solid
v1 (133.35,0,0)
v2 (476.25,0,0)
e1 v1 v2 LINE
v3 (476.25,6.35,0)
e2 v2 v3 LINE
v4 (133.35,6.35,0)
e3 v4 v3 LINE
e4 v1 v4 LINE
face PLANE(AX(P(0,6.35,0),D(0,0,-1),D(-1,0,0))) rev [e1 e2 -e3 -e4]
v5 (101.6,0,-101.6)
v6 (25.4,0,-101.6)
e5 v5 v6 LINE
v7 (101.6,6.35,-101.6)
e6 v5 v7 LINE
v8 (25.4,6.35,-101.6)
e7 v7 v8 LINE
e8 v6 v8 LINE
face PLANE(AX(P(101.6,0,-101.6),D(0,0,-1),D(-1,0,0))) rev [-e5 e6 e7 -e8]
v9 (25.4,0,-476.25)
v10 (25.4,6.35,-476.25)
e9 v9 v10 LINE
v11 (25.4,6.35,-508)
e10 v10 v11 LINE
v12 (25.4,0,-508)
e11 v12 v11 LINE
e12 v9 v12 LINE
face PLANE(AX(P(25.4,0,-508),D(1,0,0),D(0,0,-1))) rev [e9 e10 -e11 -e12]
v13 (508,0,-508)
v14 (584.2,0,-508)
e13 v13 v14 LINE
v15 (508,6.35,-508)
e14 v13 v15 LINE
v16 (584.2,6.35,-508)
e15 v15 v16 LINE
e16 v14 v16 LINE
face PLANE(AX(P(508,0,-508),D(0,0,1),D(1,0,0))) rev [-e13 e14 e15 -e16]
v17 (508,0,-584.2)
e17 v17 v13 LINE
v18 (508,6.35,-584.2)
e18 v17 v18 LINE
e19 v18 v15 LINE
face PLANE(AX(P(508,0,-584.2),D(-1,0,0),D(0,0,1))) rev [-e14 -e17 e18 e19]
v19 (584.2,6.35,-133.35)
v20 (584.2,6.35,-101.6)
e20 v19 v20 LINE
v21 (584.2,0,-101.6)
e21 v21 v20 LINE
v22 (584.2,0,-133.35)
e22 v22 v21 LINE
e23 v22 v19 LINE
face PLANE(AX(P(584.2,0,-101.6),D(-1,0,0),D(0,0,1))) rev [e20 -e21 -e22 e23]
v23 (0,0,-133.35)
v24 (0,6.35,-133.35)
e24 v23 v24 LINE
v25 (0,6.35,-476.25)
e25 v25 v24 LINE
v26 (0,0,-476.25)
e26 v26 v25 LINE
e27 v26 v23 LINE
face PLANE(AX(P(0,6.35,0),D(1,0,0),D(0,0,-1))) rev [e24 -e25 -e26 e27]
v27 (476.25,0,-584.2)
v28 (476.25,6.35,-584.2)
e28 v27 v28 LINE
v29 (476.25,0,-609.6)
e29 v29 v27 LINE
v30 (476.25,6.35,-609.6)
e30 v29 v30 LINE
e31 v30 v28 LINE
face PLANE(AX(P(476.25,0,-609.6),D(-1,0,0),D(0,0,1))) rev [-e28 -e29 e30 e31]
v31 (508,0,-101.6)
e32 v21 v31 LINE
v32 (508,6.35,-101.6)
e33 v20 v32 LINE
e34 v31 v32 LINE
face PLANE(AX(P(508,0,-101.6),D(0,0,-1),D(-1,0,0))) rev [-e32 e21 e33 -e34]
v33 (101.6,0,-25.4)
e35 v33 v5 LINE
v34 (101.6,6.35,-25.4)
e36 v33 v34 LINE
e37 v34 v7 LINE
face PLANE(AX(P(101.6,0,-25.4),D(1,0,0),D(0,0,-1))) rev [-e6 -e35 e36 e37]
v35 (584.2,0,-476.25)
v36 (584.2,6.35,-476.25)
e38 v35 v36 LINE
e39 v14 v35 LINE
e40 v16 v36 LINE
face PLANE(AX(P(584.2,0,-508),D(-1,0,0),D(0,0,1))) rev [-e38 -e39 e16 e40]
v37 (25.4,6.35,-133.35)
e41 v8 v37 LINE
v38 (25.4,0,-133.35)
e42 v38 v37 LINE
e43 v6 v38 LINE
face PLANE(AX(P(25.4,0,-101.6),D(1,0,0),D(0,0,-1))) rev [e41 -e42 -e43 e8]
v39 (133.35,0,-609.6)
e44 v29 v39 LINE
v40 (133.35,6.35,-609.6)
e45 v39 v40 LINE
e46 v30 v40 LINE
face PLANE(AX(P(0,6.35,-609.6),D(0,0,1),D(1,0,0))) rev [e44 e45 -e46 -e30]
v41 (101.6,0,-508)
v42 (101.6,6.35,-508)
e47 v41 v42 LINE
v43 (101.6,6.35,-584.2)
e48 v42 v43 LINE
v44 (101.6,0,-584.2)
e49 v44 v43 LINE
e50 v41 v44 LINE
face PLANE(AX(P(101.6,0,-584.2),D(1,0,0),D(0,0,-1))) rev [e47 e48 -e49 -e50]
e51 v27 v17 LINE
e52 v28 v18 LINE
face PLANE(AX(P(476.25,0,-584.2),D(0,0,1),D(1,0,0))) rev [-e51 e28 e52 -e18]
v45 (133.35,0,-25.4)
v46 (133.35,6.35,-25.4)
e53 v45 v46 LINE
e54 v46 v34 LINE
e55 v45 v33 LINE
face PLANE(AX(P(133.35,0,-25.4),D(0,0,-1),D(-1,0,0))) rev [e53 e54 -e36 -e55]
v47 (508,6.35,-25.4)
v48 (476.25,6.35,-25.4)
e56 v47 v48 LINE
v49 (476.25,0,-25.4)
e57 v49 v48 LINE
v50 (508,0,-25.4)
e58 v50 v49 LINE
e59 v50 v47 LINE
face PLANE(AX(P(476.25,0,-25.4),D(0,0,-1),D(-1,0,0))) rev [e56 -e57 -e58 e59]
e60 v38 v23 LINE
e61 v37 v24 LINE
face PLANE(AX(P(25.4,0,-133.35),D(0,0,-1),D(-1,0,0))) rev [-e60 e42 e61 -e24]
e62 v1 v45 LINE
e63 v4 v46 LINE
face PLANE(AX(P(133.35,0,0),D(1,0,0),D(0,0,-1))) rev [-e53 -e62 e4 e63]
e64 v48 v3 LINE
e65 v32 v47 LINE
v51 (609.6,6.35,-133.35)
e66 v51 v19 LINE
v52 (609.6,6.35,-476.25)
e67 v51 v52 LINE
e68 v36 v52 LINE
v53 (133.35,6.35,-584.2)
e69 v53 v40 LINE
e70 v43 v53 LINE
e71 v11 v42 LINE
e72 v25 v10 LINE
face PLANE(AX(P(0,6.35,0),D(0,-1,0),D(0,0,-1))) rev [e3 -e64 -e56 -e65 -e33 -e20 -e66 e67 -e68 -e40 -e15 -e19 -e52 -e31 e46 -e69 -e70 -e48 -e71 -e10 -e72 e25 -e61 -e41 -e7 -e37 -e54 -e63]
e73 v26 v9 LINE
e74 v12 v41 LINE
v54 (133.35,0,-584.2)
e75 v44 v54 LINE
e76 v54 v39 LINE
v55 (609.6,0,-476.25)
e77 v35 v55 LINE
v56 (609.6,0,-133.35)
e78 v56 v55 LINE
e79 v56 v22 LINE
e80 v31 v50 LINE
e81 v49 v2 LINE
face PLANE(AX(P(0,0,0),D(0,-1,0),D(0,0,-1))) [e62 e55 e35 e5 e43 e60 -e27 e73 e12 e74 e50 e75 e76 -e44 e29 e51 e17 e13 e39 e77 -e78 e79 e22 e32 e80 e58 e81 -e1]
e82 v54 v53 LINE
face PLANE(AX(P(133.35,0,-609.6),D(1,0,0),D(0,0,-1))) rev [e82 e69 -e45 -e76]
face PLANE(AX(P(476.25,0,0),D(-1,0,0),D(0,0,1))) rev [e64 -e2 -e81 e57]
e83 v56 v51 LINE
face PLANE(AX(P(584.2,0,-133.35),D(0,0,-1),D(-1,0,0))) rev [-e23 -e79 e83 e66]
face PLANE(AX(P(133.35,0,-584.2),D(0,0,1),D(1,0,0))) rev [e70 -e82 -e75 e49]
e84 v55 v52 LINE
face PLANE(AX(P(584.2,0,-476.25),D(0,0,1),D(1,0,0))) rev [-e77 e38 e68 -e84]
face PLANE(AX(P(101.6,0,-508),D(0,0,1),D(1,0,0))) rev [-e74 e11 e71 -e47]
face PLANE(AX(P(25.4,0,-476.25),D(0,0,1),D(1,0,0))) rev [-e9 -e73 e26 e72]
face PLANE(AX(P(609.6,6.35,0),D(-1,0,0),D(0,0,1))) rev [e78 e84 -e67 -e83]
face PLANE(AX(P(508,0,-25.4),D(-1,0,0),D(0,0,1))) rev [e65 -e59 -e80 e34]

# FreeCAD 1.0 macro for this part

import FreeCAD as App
import Part
import Sketcher
Q = App.Units.Quantity

doc = App.newDocument("Part")
body = doc.addObject("PartDesign::Body", "Body")

sketch1 = doc.addObject("Sketcher::SketchObject", "Sketch")
body.addObject(sketch1)
sketch1.AttachmentSupport = (doc.XZ_Plane, [""])
sketch1.MapMode = "FlatFace"
sketch1.addGeometry([
    Part.LineSegment(App.Vector(0, -610, 0), App.Vector(0, 0, 0)),
    Part.LineSegment(App.Vector(0, 0, 0), App.Vector(610, 0, 0)),
    Part.LineSegment(App.Vector(610, 0, 0), App.Vector(610, -610, 0)),
    Part.LineSegment(App.Vector(610, -610, 0), App.Vector(0, -610, 0)),
], False)
sketch1.addConstraint([
    Sketcher.Constraint("Coincident", 0, 2, 1, 1),
    Sketcher.Constraint("Coincident", 1, 2, 2, 1),
    Sketcher.Constraint("Coincident", 2, 2, 3, 1),
    Sketcher.Constraint("Coincident", 3, 2, 0, 1),
    Sketcher.Constraint("Vertical", 0),
    Sketcher.Constraint("Horizontal", 1),
    Sketcher.Constraint("Vertical", 2),
    Sketcher.Constraint("Horizontal", 3),
    Sketcher.Constraint("Coincident", 0, 2, -1, 1),
    Sketcher.Constraint("Equal", 3, 0),
    Sketcher.Constraint("DistanceX", 1, 1, 1, 2, Q("24 in")),
])
pad1 = doc.addObject("PartDesign::Pad", "Pad")
body.addObject(pad1)
pad1.Profile = sketch1
pad1.Length = Q("0.25 in")
pad1.Reversed = True

sketch2 = doc.addObject("Sketcher::SketchObject", "Sketch001")
body.addObject(sketch2)
sketch2.AttachmentSupport = (doc.XZ_Plane, [""])
sketch2.MapMode = "FlatFace"
sketch2.AttachmentOffset = App.Placement(App.Vector(0, 0, -0.25 * 25.4), App.Rotation())
sketch2.addGeometry([
    Part.LineSegment(App.Vector(476, 0, 0), App.Vector(610, 0, 0)),
    Part.LineSegment(App.Vector(610, 0, 0), App.Vector(610, -133, 0)),
    Part.LineSegment(App.Vector(610, -133, 0), App.Vector(584, -133, 0)),
    Part.LineSegment(App.Vector(584, -133, 0), App.Vector(584, -102, 0)),
    Part.LineSegment(App.Vector(584, -102, 0), App.Vector(508, -102, 0)),
    Part.LineSegment(App.Vector(508, -102, 0), App.Vector(508, -25, 0)),
    Part.LineSegment(App.Vector(508, -25, 0), App.Vector(476, -25, 0)),
    Part.LineSegment(App.Vector(476, -25, 0), App.Vector(476, 0, 0)),
    Part.LineSegment(App.Vector(0, -133, 0), App.Vector(0, 0, 0)),
    Part.LineSegment(App.Vector(0, 0, 0), App.Vector(133, 0, 0)),
    Part.LineSegment(App.Vector(133, 0, 0), App.Vector(133, -25, 0)),
    Part.LineSegment(App.Vector(133, -25, 0), App.Vector(102, -25, 0)),
    Part.LineSegment(App.Vector(102, -25, 0), App.Vector(102, -102, 0)),
    Part.LineSegment(App.Vector(102, -102, 0), App.Vector(25, -102, 0)),
    Part.LineSegment(App.Vector(25, -102, 0), App.Vector(25, -133, 0)),
    Part.LineSegment(App.Vector(25, -133, 0), App.Vector(0, -133, 0)),
    Part.LineSegment(App.Vector(133, -610, 0), App.Vector(0, -610, 0)),
    Part.LineSegment(App.Vector(0, -610, 0), App.Vector(0, -476, 0)),
    Part.LineSegment(App.Vector(0, -476, 0), App.Vector(25, -476, 0)),
    Part.LineSegment(App.Vector(25, -476, 0), App.Vector(25, -508, 0)),
    Part.LineSegment(App.Vector(25, -508, 0), App.Vector(102, -508, 0)),
    Part.LineSegment(App.Vector(102, -508, 0), App.Vector(102, -584, 0)),
    Part.LineSegment(App.Vector(102, -584, 0), App.Vector(133, -584, 0)),
    Part.LineSegment(App.Vector(133, -584, 0), App.Vector(133, -610, 0)),
    Part.LineSegment(App.Vector(610, -476, 0), App.Vector(610, -610, 0)),
    Part.LineSegment(App.Vector(610, -610, 0), App.Vector(476, -610, 0)),
    Part.LineSegment(App.Vector(476, -610, 0), App.Vector(476, -584, 0)),
    Part.LineSegment(App.Vector(476, -584, 0), App.Vector(508, -584, 0)),
    Part.LineSegment(App.Vector(508, -584, 0), App.Vector(508, -508, 0)),
    Part.LineSegment(App.Vector(508, -508, 0), App.Vector(584, -508, 0)),
    Part.LineSegment(App.Vector(584, -508, 0), App.Vector(584, -476, 0)),
    Part.LineSegment(App.Vector(584, -476, 0), App.Vector(610, -476, 0)),
], False)
sketch2.addConstraint([
    Sketcher.Constraint("Coincident", 0, 2, 1, 1),
    Sketcher.Constraint("Coincident", 1, 2, 2, 1),
    Sketcher.Constraint("Coincident", 2, 2, 3, 1),
    Sketcher.Constraint("Coincident", 3, 2, 4, 1),
    Sketcher.Constraint("Coincident", 4, 2, 5, 1),
    Sketcher.Constraint("Coincident", 5, 2, 6, 1),
    Sketcher.Constraint("Coincident", 6, 2, 7, 1),
    Sketcher.Constraint("Coincident", 7, 2, 0, 1),
    Sketcher.Constraint("Coincident", 8, 2, 9, 1),
    Sketcher.Constraint("Coincident", 9, 2, 10, 1),
    Sketcher.Constraint("Coincident", 10, 2, 11, 1),
    Sketcher.Constraint("Coincident", 11, 2, 12, 1),
    Sketcher.Constraint("Coincident", 12, 2, 13, 1),
    Sketcher.Constraint("Coincident", 13, 2, 14, 1),
    Sketcher.Constraint("Coincident", 14, 2, 15, 1),
    Sketcher.Constraint("Coincident", 15, 2, 8, 1),
    Sketcher.Constraint("Coincident", 16, 2, 17, 1),
    Sketcher.Constraint("Coincident", 17, 2, 18, 1),
    Sketcher.Constraint("Coincident", 18, 2, 19, 1),
    Sketcher.Constraint("Coincident", 19, 2, 20, 1),
    Sketcher.Constraint("Coincident", 20, 2, 21, 1),
    Sketcher.Constraint("Coincident", 21, 2, 22, 1),
    Sketcher.Constraint("Coincident", 22, 2, 23, 1),
    Sketcher.Constraint("Coincident", 23, 2, 16, 1),
    Sketcher.Constraint("Coincident", 24, 2, 25, 1),
    Sketcher.Constraint("Coincident", 25, 2, 26, 1),
    Sketcher.Constraint("Coincident", 26, 2, 27, 1),
    Sketcher.Constraint("Coincident", 27, 2, 28, 1),
    Sketcher.Constraint("Coincident", 28, 2, 29, 1),
    Sketcher.Constraint("Coincident", 29, 2, 30, 1),
    Sketcher.Constraint("Coincident", 30, 2, 31, 1),
    Sketcher.Constraint("Coincident", 31, 2, 24, 1),
    Sketcher.Constraint("Horizontal", 0),
    Sketcher.Constraint("Vertical", 1),
    Sketcher.Constraint("Horizontal", 2),
    Sketcher.Constraint("Vertical", 3),
    Sketcher.Constraint("Horizontal", 4),
    Sketcher.Constraint("Vertical", 5),
    Sketcher.Constraint("Horizontal", 6),
    Sketcher.Constraint("Vertical", 7),
    Sketcher.Constraint("Vertical", 8),
    Sketcher.Constraint("Horizontal", 9),
    Sketcher.Constraint("Vertical", 10),
    Sketcher.Constraint("Horizontal", 11),
    Sketcher.Constraint("Vertical", 12),
    Sketcher.Constraint("Horizontal", 13),
    Sketcher.Constraint("Vertical", 14),
    Sketcher.Constraint("Horizontal", 15),
    Sketcher.Constraint("Horizontal", 16),
    Sketcher.Constraint("Vertical", 17),
    Sketcher.Constraint("Horizontal", 18),
    Sketcher.Constraint("Vertical", 19),
    Sketcher.Constraint("Horizontal", 20),
    Sketcher.Constraint("Vertical", 21),
    Sketcher.Constraint("Horizontal", 22),
    Sketcher.Constraint("Vertical", 23),
    Sketcher.Constraint("Vertical", 24),
    Sketcher.Constraint("Horizontal", 25),
    Sketcher.Constraint("Vertical", 26),
    Sketcher.Constraint("Horizontal", 27),
    Sketcher.Constraint("Vertical", 28),
    Sketcher.Constraint("Horizontal", 29),
    Sketcher.Constraint("Vertical", 30),
    Sketcher.Constraint("Horizontal", 31),
    Sketcher.Constraint("Coincident", 8, 2, -1, 1),
    Sketcher.Constraint("PointOnObject", 0, 2, -1),
    Sketcher.Constraint("PointOnObject", 16, 2, -2),
    Sketcher.Constraint("Horizontal", 6, 2, 10, 2),
    Sketcher.Constraint("Horizontal", 4, 2, 12, 2),
    Sketcher.Constraint("Horizontal", 2, 2, 14, 2),
    Sketcher.Constraint("Horizontal", 23, 2, 24, 2),
    Sketcher.Constraint("Horizontal", 22, 2, 26, 2),
    Sketcher.Constraint("Horizontal", 20, 2, 28, 2),
    Sketcher.Constraint("Horizontal", 18, 2, 30, 2),
    Sketcher.Constraint("Vertical", 14, 2, 18, 2),
    Sketcher.Constraint("Vertical", 12, 2, 20, 2),
    Sketcher.Constraint("Vertical", 10, 2, 22, 2),
    Sketcher.Constraint("Vertical", 1, 2, 24, 2),
    Sketcher.Constraint("Vertical", 7, 2, 25, 2),
    Sketcher.Constraint("Vertical", 5, 2, 27, 2),
    Sketcher.Constraint("Vertical", 3, 2, 29, 2),
    Sketcher.Constraint("Equal", 0, 9),
    Sketcher.Constraint("Equal", 6, 11),
    Sketcher.Constraint("Equal", 4, 13),
    Sketcher.Constraint("Equal", 25, 1),
    Sketcher.Constraint("Equal", 27, 3),
    Sketcher.Constraint("Equal", 29, 5),
    Sketcher.Constraint("Equal", 8, 17),
    Sketcher.Constraint("Equal", 14, 19),
    Sketcher.Constraint("Equal", 12, 21),
    Sketcher.Constraint("DistanceX", 2, 2, 2, 1, Q("1 in")),
    Sketcher.Constraint("DistanceX", 4, 2, 4, 1, Q("3 in")),
    Sketcher.Constraint("DistanceX", -1, 1, 0, 2, Q("24 in")),
    Sketcher.Constraint("DistanceY", 16, 2, -1, 1, Q("24 in")),
    Sketcher.Constraint("DistanceX", 0, 1, 0, 2, Q("5.25 in")),
])
pocket1 = doc.addObject("PartDesign::Pocket", "Pocket")
body.addObject(pocket1)
pocket1.Profile = sketch2
pocket1.Type = "ThroughAll"
pocket1.Reversed = True

doc.recompute()
